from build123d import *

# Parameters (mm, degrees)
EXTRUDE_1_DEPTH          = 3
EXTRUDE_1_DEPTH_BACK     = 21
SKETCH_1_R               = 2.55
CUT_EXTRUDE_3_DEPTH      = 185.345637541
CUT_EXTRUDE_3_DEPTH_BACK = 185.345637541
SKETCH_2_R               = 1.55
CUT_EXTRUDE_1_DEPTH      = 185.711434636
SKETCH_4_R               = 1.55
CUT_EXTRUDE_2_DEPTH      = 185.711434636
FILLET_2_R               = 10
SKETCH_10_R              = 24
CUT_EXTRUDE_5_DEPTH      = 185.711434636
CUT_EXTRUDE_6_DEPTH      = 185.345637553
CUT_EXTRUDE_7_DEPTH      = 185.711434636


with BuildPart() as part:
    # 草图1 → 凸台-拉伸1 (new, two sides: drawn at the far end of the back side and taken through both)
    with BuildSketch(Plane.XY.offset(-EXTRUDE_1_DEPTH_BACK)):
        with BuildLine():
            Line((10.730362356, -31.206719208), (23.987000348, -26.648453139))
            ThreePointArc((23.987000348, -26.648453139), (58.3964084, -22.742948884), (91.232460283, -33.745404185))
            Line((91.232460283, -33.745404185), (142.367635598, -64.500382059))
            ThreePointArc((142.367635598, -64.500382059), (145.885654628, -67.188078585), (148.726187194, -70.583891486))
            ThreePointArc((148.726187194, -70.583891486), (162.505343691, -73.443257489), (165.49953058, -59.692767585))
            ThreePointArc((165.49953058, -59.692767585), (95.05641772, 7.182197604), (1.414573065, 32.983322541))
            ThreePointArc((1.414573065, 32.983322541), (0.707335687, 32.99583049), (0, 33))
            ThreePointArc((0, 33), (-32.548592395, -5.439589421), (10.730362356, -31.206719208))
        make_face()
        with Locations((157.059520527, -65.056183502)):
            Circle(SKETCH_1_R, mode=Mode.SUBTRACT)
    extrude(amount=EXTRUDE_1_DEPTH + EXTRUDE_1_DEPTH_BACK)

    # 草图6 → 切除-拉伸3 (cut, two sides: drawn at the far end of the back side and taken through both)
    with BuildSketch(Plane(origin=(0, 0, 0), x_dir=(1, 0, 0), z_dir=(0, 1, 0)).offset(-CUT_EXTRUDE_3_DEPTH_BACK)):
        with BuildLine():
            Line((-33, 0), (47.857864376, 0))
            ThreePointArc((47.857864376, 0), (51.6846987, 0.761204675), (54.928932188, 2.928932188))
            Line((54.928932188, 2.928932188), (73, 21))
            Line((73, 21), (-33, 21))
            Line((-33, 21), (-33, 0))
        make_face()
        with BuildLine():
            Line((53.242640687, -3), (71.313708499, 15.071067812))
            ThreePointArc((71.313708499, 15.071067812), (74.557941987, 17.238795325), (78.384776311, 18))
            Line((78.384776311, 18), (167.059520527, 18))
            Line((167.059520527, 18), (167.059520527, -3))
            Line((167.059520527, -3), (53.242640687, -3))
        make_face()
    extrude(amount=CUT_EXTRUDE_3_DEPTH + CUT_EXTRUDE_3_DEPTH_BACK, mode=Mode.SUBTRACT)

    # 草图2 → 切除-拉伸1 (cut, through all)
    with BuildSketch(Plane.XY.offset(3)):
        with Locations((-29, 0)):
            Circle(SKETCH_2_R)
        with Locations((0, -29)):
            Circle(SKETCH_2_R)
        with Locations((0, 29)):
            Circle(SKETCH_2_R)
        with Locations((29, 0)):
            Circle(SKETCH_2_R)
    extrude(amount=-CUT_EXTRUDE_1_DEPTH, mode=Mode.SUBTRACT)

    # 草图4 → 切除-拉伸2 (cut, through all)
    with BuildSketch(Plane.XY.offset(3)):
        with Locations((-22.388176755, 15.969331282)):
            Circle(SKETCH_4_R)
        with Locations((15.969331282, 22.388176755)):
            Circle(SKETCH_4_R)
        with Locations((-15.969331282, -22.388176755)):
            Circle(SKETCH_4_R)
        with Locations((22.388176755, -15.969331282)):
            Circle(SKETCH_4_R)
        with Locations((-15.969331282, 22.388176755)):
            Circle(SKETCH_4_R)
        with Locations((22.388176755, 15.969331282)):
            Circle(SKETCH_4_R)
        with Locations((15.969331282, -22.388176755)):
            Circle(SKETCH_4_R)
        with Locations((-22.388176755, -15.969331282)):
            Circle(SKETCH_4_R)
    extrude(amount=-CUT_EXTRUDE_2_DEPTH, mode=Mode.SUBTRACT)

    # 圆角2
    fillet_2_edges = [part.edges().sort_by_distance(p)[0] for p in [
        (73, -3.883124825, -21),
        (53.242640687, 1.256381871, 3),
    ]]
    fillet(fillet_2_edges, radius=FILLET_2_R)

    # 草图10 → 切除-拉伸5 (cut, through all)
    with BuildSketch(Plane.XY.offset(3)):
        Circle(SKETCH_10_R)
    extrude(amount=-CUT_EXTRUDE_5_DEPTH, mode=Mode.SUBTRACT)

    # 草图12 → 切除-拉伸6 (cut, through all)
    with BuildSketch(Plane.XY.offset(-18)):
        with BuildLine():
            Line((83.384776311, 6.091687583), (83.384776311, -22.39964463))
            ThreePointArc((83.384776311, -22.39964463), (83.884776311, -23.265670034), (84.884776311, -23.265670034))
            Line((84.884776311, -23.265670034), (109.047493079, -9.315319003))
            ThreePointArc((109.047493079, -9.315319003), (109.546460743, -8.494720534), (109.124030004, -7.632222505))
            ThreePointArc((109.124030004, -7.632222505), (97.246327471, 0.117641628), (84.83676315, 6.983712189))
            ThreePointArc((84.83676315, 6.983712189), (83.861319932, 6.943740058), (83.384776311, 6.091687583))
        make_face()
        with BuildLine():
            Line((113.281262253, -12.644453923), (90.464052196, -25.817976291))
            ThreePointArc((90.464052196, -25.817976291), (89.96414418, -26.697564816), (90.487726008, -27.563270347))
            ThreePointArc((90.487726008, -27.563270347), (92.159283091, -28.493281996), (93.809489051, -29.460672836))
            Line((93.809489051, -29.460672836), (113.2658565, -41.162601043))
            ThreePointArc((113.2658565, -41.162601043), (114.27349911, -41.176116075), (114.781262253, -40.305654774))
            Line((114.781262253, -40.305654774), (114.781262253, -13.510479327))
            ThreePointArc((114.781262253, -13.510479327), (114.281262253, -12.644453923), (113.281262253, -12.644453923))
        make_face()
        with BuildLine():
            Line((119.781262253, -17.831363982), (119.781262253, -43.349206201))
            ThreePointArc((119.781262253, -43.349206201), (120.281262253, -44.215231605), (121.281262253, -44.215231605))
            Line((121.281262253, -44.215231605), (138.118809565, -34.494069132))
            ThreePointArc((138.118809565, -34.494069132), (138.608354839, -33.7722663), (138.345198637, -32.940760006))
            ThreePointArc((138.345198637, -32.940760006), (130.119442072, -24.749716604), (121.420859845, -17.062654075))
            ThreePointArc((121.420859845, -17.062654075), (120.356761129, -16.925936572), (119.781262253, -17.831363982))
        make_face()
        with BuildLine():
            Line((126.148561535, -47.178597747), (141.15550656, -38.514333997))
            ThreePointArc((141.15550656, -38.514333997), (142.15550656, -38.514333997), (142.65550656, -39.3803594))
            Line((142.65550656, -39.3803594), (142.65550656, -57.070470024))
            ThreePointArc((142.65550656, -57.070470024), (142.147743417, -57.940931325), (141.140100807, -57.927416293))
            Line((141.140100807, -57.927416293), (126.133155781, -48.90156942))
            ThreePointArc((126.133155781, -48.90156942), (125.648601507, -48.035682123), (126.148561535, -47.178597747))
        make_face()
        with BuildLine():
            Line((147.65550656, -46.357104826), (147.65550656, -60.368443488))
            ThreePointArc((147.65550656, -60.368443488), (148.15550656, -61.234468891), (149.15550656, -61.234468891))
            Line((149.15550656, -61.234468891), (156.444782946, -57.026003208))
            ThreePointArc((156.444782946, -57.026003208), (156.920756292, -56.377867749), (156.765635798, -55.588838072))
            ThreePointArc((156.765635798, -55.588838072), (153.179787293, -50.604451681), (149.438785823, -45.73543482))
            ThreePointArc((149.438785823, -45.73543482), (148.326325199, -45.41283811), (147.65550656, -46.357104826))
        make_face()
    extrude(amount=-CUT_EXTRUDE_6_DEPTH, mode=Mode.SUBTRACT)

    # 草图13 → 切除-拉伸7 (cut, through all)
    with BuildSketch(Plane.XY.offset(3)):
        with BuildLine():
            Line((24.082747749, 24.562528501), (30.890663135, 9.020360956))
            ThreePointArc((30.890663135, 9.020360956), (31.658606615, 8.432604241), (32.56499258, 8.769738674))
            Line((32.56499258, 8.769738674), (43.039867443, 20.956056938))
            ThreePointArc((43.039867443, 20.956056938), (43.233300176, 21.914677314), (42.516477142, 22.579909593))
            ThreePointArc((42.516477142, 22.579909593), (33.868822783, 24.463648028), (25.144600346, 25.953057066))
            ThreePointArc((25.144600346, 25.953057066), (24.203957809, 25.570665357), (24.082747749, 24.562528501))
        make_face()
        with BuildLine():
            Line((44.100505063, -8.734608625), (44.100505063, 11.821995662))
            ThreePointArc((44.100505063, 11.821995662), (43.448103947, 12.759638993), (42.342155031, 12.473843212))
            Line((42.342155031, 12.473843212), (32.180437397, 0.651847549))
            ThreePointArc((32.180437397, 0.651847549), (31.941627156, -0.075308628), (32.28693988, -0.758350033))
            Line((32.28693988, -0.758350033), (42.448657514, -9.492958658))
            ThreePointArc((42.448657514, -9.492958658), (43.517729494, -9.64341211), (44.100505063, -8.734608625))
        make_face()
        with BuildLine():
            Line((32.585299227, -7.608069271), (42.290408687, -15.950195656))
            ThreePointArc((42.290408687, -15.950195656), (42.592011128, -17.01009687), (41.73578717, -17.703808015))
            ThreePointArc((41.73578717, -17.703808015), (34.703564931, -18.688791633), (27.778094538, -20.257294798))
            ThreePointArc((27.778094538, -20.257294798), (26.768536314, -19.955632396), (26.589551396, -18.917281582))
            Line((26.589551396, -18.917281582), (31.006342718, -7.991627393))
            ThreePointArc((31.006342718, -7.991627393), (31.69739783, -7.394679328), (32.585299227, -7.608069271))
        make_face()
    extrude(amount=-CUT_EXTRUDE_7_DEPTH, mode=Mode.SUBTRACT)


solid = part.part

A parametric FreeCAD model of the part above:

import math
import FreeCAD as App
import Part
import Sketcher
Q = App.Units.Quantity


def edges_at(feature, points):
    """Names of the edges that pass closest to the given points."""
    edges = feature.Shape.Edges
    near = lambda p: min(range(len(edges)), key=lambda i: edges[i].distToShape(Part.Vertex(*p))[0])
    return sorted({f"Edge{near(p) + 1}" for p in points})

doc = App.newDocument("Part")
body = doc.addObject("PartDesign::Body", "Body")

sketch1 = body.newObject("Sketcher::SketchObject", "Sketch")
sketch1.AttachmentSupport = (doc.getObject("XY_Plane"), [""])
sketch1.MapMode = "FlatFace"
sketch1.addGeometry(Part.LineSegment(App.Vector(10.7, -31.2, 0), App.Vector(24, -26.6, 0)), False)
sketch1.addGeometry(Part.ArcOfCircle(Part.Circle(App.Vector(50, -102.3, 0), App.Vector(0, 0, 1), 80), math.radians(59), math.radians(109)), False)
sketch1.addGeometry(Part.LineSegment(App.Vector(91.2, -33.7, 0), App.Vector(142.4, -64.5, 0)), False)
sketch1.addGeometry(Part.ArcOfCircle(Part.Circle(App.Vector(132.1, -81.6, 0), App.Vector(0, 0, 1), 20), math.radians(34), math.radians(59)), False)
sketch1.addGeometry(Part.ArcOfCircle(Part.Circle(App.Vector(157.1, -65.1, 0), App.Vector(0, 0, 1), 10), math.radians(-146), math.radians(32)), False)
sketch1.addGeometry(Part.ArcOfCircle(Part.Circle(App.Vector(-3.3, -167, 0), App.Vector(0, 0, 1), 200), math.radians(32), math.radians(89)), False)
sketch1.addGeometry(Part.ArcOfCircle(Part.Circle(App.Vector(0, -27, 0), App.Vector(0, 0, 1), 60), math.radians(88.65), math.radians(90)), False)
sketch1.addGeometry(Part.ArcOfCircle(Part.Circle(App.Vector(0, 0, 0), App.Vector(0, 0, 1), 33), math.radians(90), math.radians(289)), False)
sketch1.addGeometry(Part.Circle(App.Vector(157.1, -65.1, 0), App.Vector(0, 0, 1), 2.5), False)
sketch1.addConstraint(Sketcher.Constraint("Tangent", 0, 2, 1, 2))
sketch1.addConstraint(Sketcher.Constraint("Tangent", 1, 1, 2, 1))
sketch1.addConstraint(Sketcher.Constraint("Tangent", 2, 2, 3, 2))
sketch1.addConstraint(Sketcher.Constraint("Tangent", 3, 1, 4, 1))
sketch1.addConstraint(Sketcher.Constraint("Tangent", 4, 2, 5, 1))
sketch1.addConstraint(Sketcher.Constraint("Tangent", 5, 2, 6, 1))
sketch1.addConstraint(Sketcher.Constraint("Tangent", 6, 2, 7, 1))
sketch1.addConstraint(Sketcher.Constraint("Tangent", 7, 2, 0, 1))
sketch1.addConstraint(Sketcher.Constraint("Coincident", 7, 3, -1, 1))
sketch1.addConstraint(Sketcher.Constraint("Coincident", 8, 3, 4, 3))
sketch1.addConstraint(Sketcher.Constraint("PointOnObject", 6, 3, -2))
sketch1.addConstraint(Sketcher.Constraint("Radius", 1, Q("80 mm")))
sketch1.addConstraint(Sketcher.Constraint("Radius", 3, Q("20 mm")))
sketch1.addConstraint(Sketcher.Constraint("Radius", 4, Q("10 mm")))
sketch1.addConstraint(Sketcher.Constraint("Radius", 5, Q("200 mm")))
sketch1.addConstraint(Sketcher.Constraint("Radius", 7, Q("33 mm")))
sketch1.addConstraint(Sketcher.Constraint("Diameter", 8, Q("5.1 mm")))
sketch1.addConstraint(Sketcher.Constraint("DistanceX", -1, 1, 1, 3, Q("50 mm")))
sketch1.addConstraint(Sketcher.Constraint("DistanceX", 3, 3, 4, 3, Q("25 mm")))
sketch1.addConstraint(Sketcher.Constraint("DistanceX", -1, 1, 0, 2, Q("23.987 mm")))
sketch1.addConstraint(Sketcher.Constraint("Radius", 6, Q("60.000006 mm")))
sketch1.addConstraint(Sketcher.Constraint("DistanceY", 1, 3, 3, 3, Q("20.661798 mm")))
sketch1.addConstraint(Sketcher.Constraint("DistanceY", 1, 3, 1, 1, Q("68.555702 mm")))
pad1 = body.newObject("PartDesign::Pad", "Pad")
pad1.Profile = sketch1
pad1.Type = "TwoLengths"
pad1.Length = 3
pad1.Length2 = 21

sketch2 = body.newObject("Sketcher::SketchObject", "Sketch001")
sketch2.AttachmentSupport = (doc.getObject("XZ_Plane"), [""])
sketch2.MapMode = "FlatFace"
sketch2.addGeometry(Part.LineSegment(App.Vector(-33, 0, 0), App.Vector(48, 0, 0)), False)
sketch2.addGeometry(Part.ArcOfCircle(Part.Circle(App.Vector(48, -10, 0), App.Vector(0, 0, 1), 10), math.radians(45), math.radians(90)), False)
sketch2.addGeometry(Part.LineSegment(App.Vector(55, -3, 0), App.Vector(73, -21, 0)), False)
sketch2.addGeometry(Part.LineSegment(App.Vector(73, -21, 0), App.Vector(-33, -21, 0)), False)
sketch2.addGeometry(Part.LineSegment(App.Vector(-33, -21, 0), App.Vector(-33, 0, 0)), False)
sketch2.addGeometry(Part.LineSegment(App.Vector(71, -15, 0), App.Vector(53, 3, 0)), False)
sketch2.addGeometry(Part.LineSegment(App.Vector(53, 3, 0), App.Vector(167, 3, 0)), False)
sketch2.addGeometry(Part.LineSegment(App.Vector(167, 3, 0), App.Vector(167, -18, 0)), False)
sketch2.addGeometry(Part.LineSegment(App.Vector(167, -18, 0), App.Vector(78, -18, 0)), False)
sketch2.addGeometry(Part.ArcOfCircle(Part.Circle(App.Vector(78, -8, 0), App.Vector(0, 0, 1), 10), math.radians(-135), math.radians(-90)), False)
sketch2.addConstraint(Sketcher.Constraint("Tangent", 0, 2, 1, 2))
sketch2.addConstraint(Sketcher.Constraint("Tangent", 1, 1, 2, 1))
sketch2.addConstraint(Sketcher.Constraint("Coincident", 2, 2, 3, 1))
sketch2.addConstraint(Sketcher.Constraint("Coincident", 3, 2, 4, 1))
sketch2.addConstraint(Sketcher.Constraint("Coincident", 4, 2, 0, 1))
sketch2.addConstraint(Sketcher.Constraint("Coincident", 5, 2, 6, 1))
sketch2.addConstraint(Sketcher.Constraint("Coincident", 6, 2, 7, 1))
sketch2.addConstraint(Sketcher.Constraint("Coincident", 7, 2, 8, 1))
sketch2.addConstraint(Sketcher.Constraint("Tangent", 8, 2, 9, 2))
sketch2.addConstraint(Sketcher.Constraint("Tangent", 9, 1, 5, 1))
sketch2.addConstraint(Sketcher.Constraint("Horizontal", 0))
sketch2.addConstraint(Sketcher.Constraint("Horizontal", 3))
sketch2.addConstraint(Sketcher.Constraint("Vertical", 4))
sketch2.addConstraint(Sketcher.Constraint("Horizontal", 6))
sketch2.addConstraint(Sketcher.Constraint("Vertical", 7))
sketch2.addConstraint(Sketcher.Constraint("Horizontal", 8))
sketch2.addConstraint(Sketcher.Constraint("Equal", 1, 9))
sketch2.addConstraint(Sketcher.Constraint("PointOnObject", 0, 2, -1))
sketch2.addConstraint(Sketcher.Constraint("Parallel", 2, 5))
sketch2.addConstraint(Sketcher.Constraint("Equal", 4, 7))
sketch2.addConstraint(Sketcher.Constraint("Radius", 1, Q("10 mm")))
sketch2.addConstraint(Sketcher.Constraint("DistanceX", 3, 2, 3, 1, Q("106 mm")))
sketch2.addConstraint(Sketcher.Constraint("DistanceY", 4, 1, 4, 2, Q("21 mm")))
sketch2.addConstraint(Sketcher.Constraint("Angle", 2, Q("-45 deg")))
sketch2.addConstraint(Sketcher.Constraint("DistanceY", 9, 3, -1, 1, Q("8 mm")))
sketch2.addConstraint(Sketcher.Constraint("DistanceX", -1, 1, 2, 2, Q("73 mm")))
sketch2.addConstraint(Sketcher.Constraint("DistanceX", 6, 1, 6, 2, Q("113.81688 mm")))
sketch2.addConstraint(Sketcher.Constraint("DistanceX", -1, 1, 5, 2, Q("53.242641 mm")))
pocket1 = body.newObject("PartDesign::Pocket", "Pocket")
pocket1.Profile = sketch2
pocket1.Type = "ThroughAll"
pocket1.Midplane = True

sketch3 = body.newObject("Sketcher::SketchObject", "Sketch002")
sketch3.AttachmentSupport = (doc.getObject("XY_Plane"), [""])
sketch3.MapMode = "FlatFace"
sketch3.AttachmentOffset = App.Placement(App.Vector(0, 0, 3), App.Rotation())
sketch3.addGeometry(Part.Circle(App.Vector(-29, 0, 0), App.Vector(0, 0, 1), 1.6), False)
sketch3.addGeometry(Part.Circle(App.Vector(0, -29, 0), App.Vector(0, 0, 1), 1.6), False)
sketch3.addGeometry(Part.Circle(App.Vector(0, 29, 0), App.Vector(0, 0, 1), 1.6), False)
sketch3.addGeometry(Part.Circle(App.Vector(29, 0, 0), App.Vector(0, 0, 1), 1.6), False)
sketch3.addConstraint(Sketcher.Constraint("Equal", 0, 1))
sketch3.addConstraint(Sketcher.Constraint("Equal", 1, 2))
sketch3.addConstraint(Sketcher.Constraint("Equal", 2, 3))
sketch3.addConstraint(Sketcher.Constraint("Symmetric", 1, 3, 2, 3, -1, 1))
sketch3.addConstraint(Sketcher.Constraint("Symmetric", 0, 3, 3, 3, -1, 1))
sketch3.addConstraint(Sketcher.Constraint("PointOnObject", 0, 3, -1))
sketch3.addConstraint(Sketcher.Constraint("PointOnObject", 1, 3, -2))
sketch3.addConstraint(Sketcher.Constraint("Diameter", 0, Q("3.1 mm")))
sketch3.addConstraint(Sketcher.Constraint("DistanceX", 0, 3, -1, 1, Q("29 mm")))
sketch3.addConstraint(Sketcher.Constraint("DistanceY", 1, 3, -1, 1, Q("29 mm")))
pocket2 = body.newObject("PartDesign::Pocket", "Pocket001")
pocket2.Profile = sketch3
pocket2.Type = "ThroughAll"

sketch4 = body.newObject("Sketcher::SketchObject", "Sketch003")
sketch4.AttachmentSupport = (doc.getObject("XY_Plane"), [""])
sketch4.MapMode = "FlatFace"
sketch4.AttachmentOffset = App.Placement(App.Vector(0, 0, 3), App.Rotation())
sketch4.addGeometry(Part.Circle(App.Vector(-22.4, 16, 0), App.Vector(0, 0, 1), 1.6), False)
sketch4.addGeometry(Part.Circle(App.Vector(16, 22.4, 0), App.Vector(0, 0, 1), 1.6), False)
sketch4.addGeometry(Part.Circle(App.Vector(-16, -22.4, 0), App.Vector(0, 0, 1), 1.6), False)
sketch4.addGeometry(Part.Circle(App.Vector(22.4, -16, 0), App.Vector(0, 0, 1), 1.6), False)
sketch4.addGeometry(Part.Circle(App.Vector(-16, 22.4, 0), App.Vector(0, 0, 1), 1.6), False)
sketch4.addGeometry(Part.Circle(App.Vector(22.4, 16, 0), App.Vector(0, 0, 1), 1.6), False)
sketch4.addGeometry(Part.Circle(App.Vector(16, -22.4, 0), App.Vector(0, 0, 1), 1.6), False)
sketch4.addGeometry(Part.Circle(App.Vector(-22.4, -16, 0), App.Vector(0, 0, 1), 1.6), False)
sketch4.addConstraint(Sketcher.Constraint("Equal", 0, 1))
sketch4.addConstraint(Sketcher.Constraint("Equal", 1, 2))
sketch4.addConstraint(Sketcher.Constraint("Equal", 2, 3))
sketch4.addConstraint(Sketcher.Constraint("Equal", 3, 4))
sketch4.addConstraint(Sketcher.Constraint("Equal", 4, 5))
sketch4.addConstraint(Sketcher.Constraint("Equal", 5, 6))
sketch4.addConstraint(Sketcher.Constraint("Equal", 6, 7))
sketch4.addConstraint(Sketcher.Constraint("Symmetric", 1, 3, 2, 3, -1, 1))
sketch4.addConstraint(Sketcher.Constraint("Symmetric", 0, 3, 3, 3, -1, 1))
sketch4.addConstraint(Sketcher.Constraint("Symmetric", 4, 3, 6, 3, -1, 1))
sketch4.addConstraint(Sketcher.Constraint("Symmetric", 5, 3, 7, 3, -1, 1))
sketch4.addConstraint(Sketcher.Constraint("Symmetric", 1, 3, 4, 3, -2))
sketch4.addConstraint(Sketcher.Constraint("Symmetric", 0, 3, 5, 3, -2))
sketch4.addConstraint(Sketcher.Constraint("Diameter", 0, Q("3.1 mm")))
sketch4.addConstraint(Sketcher.Constraint("DistanceY", -1, 1, 0, 3, Q("15.969331 mm")))
sketch4.addConstraint(Sketcher.Constraint("DistanceX", -1, 1, 1, 3, Q("15.969331 mm")))
sketch4.addConstraint(Sketcher.Constraint("DistanceX", 0, 3, 1, 3, Q("38.357508 mm")))
sketch4.addConstraint(Sketcher.Constraint("DistanceY", 2, 3, 0, 3, Q("38.357508 mm")))
pocket3 = body.newObject("PartDesign::Pocket", "Pocket002")
pocket3.Profile = sketch4
pocket3.Type = "ThroughAll"
doc.recompute()

fillet = body.newObject("PartDesign::Fillet", "Fillet")
fillet.Base = (pocket3, edges_at(pocket3, [(73, -3.883, -21), (53.243, 1.256, 3)]))
fillet.Radius = 10

sketch5 = body.newObject("Sketcher::SketchObject", "Sketch004")
sketch5.AttachmentSupport = (doc.getObject("XY_Plane"), [""])
sketch5.MapMode = "FlatFace"
sketch5.AttachmentOffset = App.Placement(App.Vector(0, 0, 3), App.Rotation())
sketch5.addGeometry(Part.Circle(App.Vector(0, 0, 0), App.Vector(0, 0, 1), 24), False)
sketch5.addConstraint(Sketcher.Constraint("Coincident", 0, 3, -1, 1))
sketch5.addConstraint(Sketcher.Constraint("Diameter", 0, Q("48 mm")))
pocket4 = body.newObject("PartDesign::Pocket", "Pocket003")
pocket4.Profile = sketch5
pocket4.Type = "ThroughAll"

sketch6 = body.newObject("Sketcher::SketchObject", "Sketch005")
sketch6.AttachmentSupport = (doc.getObject("XY_Plane"), [""])
sketch6.MapMode = "FlatFace"
sketch6.AttachmentOffset = App.Placement(App.Vector(0, 0, -18), App.Rotation())
sketch6.addGeometry(Part.LineSegment(App.Vector(83.4, 6.1, 0), App.Vector(83.4, -22.4, 0)), False)
sketch6.addGeometry(Part.ArcOfCircle(Part.Circle(App.Vector(84.4, -22.4, 0), App.Vector(0, 0, 1), 1), math.radians(180), math.radians(300)), False)
sketch6.addGeometry(Part.LineSegment(App.Vector(84.9, -23.3, 0), App.Vector(109, -9.3, 0)), False)
sketch6.addGeometry(Part.ArcOfCircle(Part.Circle(App.Vector(108.5, -8.4, 0), App.Vector(0, 0, 1), 1), math.radians(-60), math.radians(55)), False)
sketch6.addGeometry(Part.ArcOfCircle(Part.Circle(App.Vector(-3.3, -167, 0), App.Vector(0, 0, 1), 195), math.radians(54.79), math.radians(63.13)), False)
sketch6.addGeometry(Part.ArcOfCircle(Part.Circle(App.Vector(84.4, 6.1, 0), App.Vector(0, 0, 1), 1), math.radians(63), math.radians(180)), False)
sketch6.addGeometry(Part.LineSegment(App.Vector(113.3, -12.6, 0), App.Vector(90.5, -25.8, 0)), False)
sketch6.addGeometry(Part.ArcOfCircle(Part.Circle(App.Vector(91, -26.7, 0), App.Vector(0, 0, 1), 1), math.radians(120), math.radians(242)), False)
sketch6.addGeometry(Part.ArcOfCircle(Part.Circle(App.Vector(50, -102.3, 0), App.Vector(0, 0, 1), 85), math.radians(58.98), math.radians(61.55)), False)
sketch6.addGeometry(Part.LineSegment(App.Vector(93.8, -29.5, 0), App.Vector(113.3, -41.2, 0)), False)
sketch6.addGeometry(Part.ArcOfCircle(Part.Circle(App.Vector(113.8, -40.3, 0), App.Vector(0, 0, 1), 1), math.radians(-121), math.radians(0)), False)
sketch6.addGeometry(Part.LineSegment(App.Vector(114.8, -40.3, 0), App.Vector(114.8, -13.5, 0)), False)
sketch6.addGeometry(Part.ArcOfCircle(Part.Circle(App.Vector(113.8, -13.5, 0), App.Vector(0, 0, 1), 1), math.radians(0), math.radians(120)), False)
sketch6.addGeometry(Part.LineSegment(App.Vector(119.8, -17.8, 0), App.Vector(119.8, -43.3, 0)), False)
sketch6.addGeometry(Part.ArcOfCircle(Part.Circle(App.Vector(120.8, -43.3, 0), App.Vector(0, 0, 1), 1), math.radians(180), math.radians(300)), False)
sketch6.addGeometry(Part.LineSegment(App.Vector(121.3, -44.2, 0), App.Vector(138.1, -34.5, 0)), False)
sketch6.addGeometry(Part.ArcOfCircle(Part.Circle(App.Vector(137.6, -33.6, 0), App.Vector(0, 0, 1), 1), math.radians(-60), math.radians(43)), False)
sketch6.addGeometry(Part.ArcOfCircle(Part.Circle(App.Vector(-3.3, -167, 0), App.Vector(0, 0, 1), 195), math.radians(43.42), math.radians(50.24)), False)
sketch6.addGeometry(Part.ArcOfCircle(Part.Circle(App.Vector(120.8, -17.8, 0), App.Vector(0, 0, 1), 1), math.radians(50), math.radians(180)), False)
sketch6.addGeometry(Part.LineSegment(App.Vector(141.2, -38.5, 0), App.Vector(126.1, -47.2, 0)), False)
sketch6.addGeometry(Part.ArcOfCircle(Part.Circle(App.Vector(126.6, -48, 0), App.Vector(0, 0, 1), 1), math.radians(120), math.radians(239)), False)
sketch6.addGeometry(Part.LineSegment(App.Vector(126.1, -48.9, 0), App.Vector(141.1, -57.9, 0)), False)
sketch6.addGeometry(Part.ArcOfCircle(Part.Circle(App.Vector(141.7, -57.1, 0), App.Vector(0, 0, 1), 1), math.radians(-121), math.radians(0)), False)
sketch6.addGeometry(Part.LineSegment(App.Vector(142.7, -57.1, 0), App.Vector(142.7, -39.4, 0)), False)
sketch6.addGeometry(Part.ArcOfCircle(Part.Circle(App.Vector(141.7, -39.4, 0), App.Vector(0, 0, 1), 1), math.radians(0), math.radians(120)), False)
sketch6.addGeometry(Part.LineSegment(App.Vector(147.7, -46.4, 0), App.Vector(147.7, -60.4, 0)), False)
sketch6.addGeometry(Part.ArcOfCircle(Part.Circle(App.Vector(148.7, -60.4, 0), App.Vector(0, 0, 1), 1), math.radians(-180), math.radians(-60)), False)
sketch6.addGeometry(Part.LineSegment(App.Vector(149.2, -61.2, 0), App.Vector(156.4, -57, 0)), False)
sketch6.addGeometry(Part.ArcOfCircle(Part.Circle(App.Vector(155.9, -56.2, 0), App.Vector(0, 0, 1), 1), math.radians(-60), math.radians(35)), False)
sketch6.addGeometry(Part.ArcOfCircle(Part.Circle(App.Vector(-3.3, -167, 0), App.Vector(0, 0, 1), 195), math.radians(34.83), math.radians(38.44)), False)
sketch6.addGeometry(Part.ArcOfCircle(Part.Circle(App.Vector(148.7, -46.4, 0), App.Vector(0, 0, 1), 1), math.radians(38), math.radians(180)), False)
sketch6.addConstraint(Sketcher.Constraint("Tangent", 0, 2, 1, 1))
sketch6.addConstraint(Sketcher.Constraint("Tangent", 1, 2, 2, 1))
sketch6.addConstraint(Sketcher.Constraint("Tangent", 2, 2, 3, 1))
sketch6.addConstraint(Sketcher.Constraint("Tangent", 3, 2, 4, 1))
sketch6.addConstraint(Sketcher.Constraint("Tangent", 4, 2, 5, 1))
sketch6.addConstraint(Sketcher.Constraint("Tangent", 5, 2, 0, 1))
sketch6.addConstraint(Sketcher.Constraint("Tangent", 6, 2, 7, 1))
sketch6.addConstraint(Sketcher.Constraint("Tangent", 7, 2, 8, 2))
sketch6.addConstraint(Sketcher.Constraint("Tangent", 8, 1, 9, 1))
sketch6.addConstraint(Sketcher.Constraint("Tangent", 9, 2, 10, 1))
sketch6.addConstraint(Sketcher.Constraint("Tangent", 10, 2, 11, 1))
sketch6.addConstraint(Sketcher.Constraint("Tangent", 11, 2, 12, 1))
sketch6.addConstraint(Sketcher.Constraint("Tangent", 12, 2, 6, 1))
sketch6.addConstraint(Sketcher.Constraint("Tangent", 13, 2, 14, 1))
sketch6.addConstraint(Sketcher.Constraint("Tangent", 14, 2, 15, 1))
sketch6.addConstraint(Sketcher.Constraint("Tangent", 15, 2, 16, 1))
sketch6.addConstraint(Sketcher.Constraint("Tangent", 16, 2, 17, 1))
sketch6.addConstraint(Sketcher.Constraint("Tangent", 17, 2, 18, 1))
sketch6.addConstraint(Sketcher.Constraint("Tangent", 18, 2, 13, 1))
sketch6.addConstraint(Sketcher.Constraint("Tangent", 19, 2, 20, 1))
sketch6.addConstraint(Sketcher.Constraint("Tangent", 20, 2, 21, 1))
sketch6.addConstraint(Sketcher.Constraint("Tangent", 21, 2, 22, 1))
sketch6.addConstraint(Sketcher.Constraint("Tangent", 22, 2, 23, 1))
sketch6.addConstraint(Sketcher.Constraint("Tangent", 23, 2, 24, 1))
sketch6.addConstraint(Sketcher.Constraint("Tangent", 24, 2, 19, 1))
sketch6.addConstraint(Sketcher.Constraint("Tangent", 25, 2, 26, 1))
sketch6.addConstraint(Sketcher.Constraint("Tangent", 26, 2, 27, 1))
sketch6.addConstraint(Sketcher.Constraint("Tangent", 27, 2, 28, 1))
sketch6.addConstraint(Sketcher.Constraint("Tangent", 28, 2, 29, 1))
sketch6.addConstraint(Sketcher.Constraint("Tangent", 29, 2, 30, 1))
sketch6.addConstraint(Sketcher.Constraint("Tangent", 30, 2, 25, 1))
sketch6.addConstraint(Sketcher.Constraint("Vertical", 0))
sketch6.addConstraint(Sketcher.Constraint("Vertical", 11))
sketch6.addConstraint(Sketcher.Constraint("Vertical", 13))
sketch6.addConstraint(Sketcher.Constraint("Vertical", 23))
sketch6.addConstraint(Sketcher.Constraint("Vertical", 25))
sketch6.addConstraint(Sketcher.Constraint("Coincident", 17, 3, 4, 3))
sketch6.addConstraint(Sketcher.Constraint("Coincident", 29, 3, 4, 3))
sketch6.addConstraint(Sketcher.Constraint("Equal", 1, 3))
sketch6.addConstraint(Sketcher.Constraint("Equal", 3, 5))
sketch6.addConstraint(Sketcher.Constraint("Equal", 5, 7))
sketch6.addConstraint(Sketcher.Constraint("Equal", 7, 10))
sketch6.addConstraint(Sketcher.Constraint("Equal", 10, 12))
sketch6.addConstraint(Sketcher.Constraint("Equal", 12, 14))
sketch6.addConstraint(Sketcher.Constraint("Equal", 14, 16))
sketch6.addConstraint(Sketcher.Constraint("Equal", 4, 17))
sketch6.addConstraint(Sketcher.Constraint("Equal", 16, 18))
sketch6.addConstraint(Sketcher.Constraint("Equal", 18, 20))
sketch6.addConstraint(Sketcher.Constraint("Equal", 20, 22))
sketch6.addConstraint(Sketcher.Constraint("Equal", 22, 24))
sketch6.addConstraint(Sketcher.Constraint("Equal", 24, 26))
sketch6.addConstraint(Sketcher.Constraint("Equal", 26, 28))
sketch6.addConstraint(Sketcher.Constraint("Equal", 17, 29))
sketch6.addConstraint(Sketcher.Constraint("Equal", 28, 30))
sketch6.addConstraint(Sketcher.Constraint("Parallel", 2, 6))
sketch6.addConstraint(Sketcher.Constraint("Parallel", 6, 15))
sketch6.addConstraint(Sketcher.Constraint("Parallel", 15, 19))
sketch6.addConstraint(Sketcher.Constraint("Parallel", 9, 21))
sketch6.addConstraint(Sketcher.Constraint("Parallel", 19, 27))
sketch6.addConstraint(Sketcher.Constraint("Radius", 1, Q("1 mm")))
sketch6.addConstraint(Sketcher.Constraint("Radius", 4, Q("195 mm")))
sketch6.addConstraint(Sketcher.Constraint("Radius", 8, Q("84.999999 mm")))
sketch6.addConstraint(Sketcher.Constraint("Angle", 2, Q("30 deg")))
sketch6.addConstraint(Sketcher.Constraint("DistanceX", -1, 1, 8, 3, Q("50 mm")))
sketch6.addConstraint(Sketcher.Constraint("DistanceX", 10, 3, 14, 3, Q("7 mm")))
sketch6.addConstraint(Sketcher.Constraint("DistanceX", 22, 3, 26, 3, Q("7 mm")))
sketch6.addConstraint(Sketcher.Constraint("DistanceY", 7, 3, -1, 1, Q("26.684002 mm")))
sketch6.addConstraint(Sketcher.Constraint("DistanceY", 26, 2, 22, 2, Q("4.163999 mm")))
sketch6.addConstraint(Sketcher.Constraint("DistanceY", 23, 1, 23, 2, Q("17.690111 mm")))
sketch6.addConstraint(Sketcher.Constraint("DistanceY", 25, 2, 25, 1, Q("14.011339 mm")))
sketch6.addConstraint(Sketcher.Constraint("DistanceY", 9, 2, -1, 1, Q("41.162601 mm")))
sketch6.addConstraint(Sketcher.Constraint("DistanceX", -1, 1, 16, 2, Q("138.345199 mm")))
sketch6.addConstraint(Sketcher.Constraint("DistanceX", -1, 1, 21, 2, Q("141.140101 mm")))
sketch6.addConstraint(Sketcher.Constraint("DistanceX", 14, 3, 20, 3, Q("5.867299 mm")))
sketch6.addConstraint(Sketcher.Constraint("DistanceY", 26, 3, 16, 3, Q("26.7404 mm")))
sketch6.addConstraint(Sketcher.Constraint("DistanceY", 7, 2, 1, 2, Q("4.2976 mm")))
sketch6.addConstraint(Sketcher.Constraint("Distance", 21, Q("17.512119 mm")))
sketch6.addConstraint(Sketcher.Constraint("DistanceY", 0, 2, 0, 1, Q("28.491332 mm")))
sketch6.addConstraint(Sketcher.Constraint("DistanceY", 22, 3, -1, 1, Q("57.07047 mm")))
pocket5 = body.newObject("PartDesign::Pocket", "Pocket004")
pocket5.Profile = sketch6
pocket5.Type = "ThroughAll"

sketch7 = body.newObject("Sketcher::SketchObject", "Sketch006")
sketch7.AttachmentSupport = (doc.getObject("XY_Plane"), [""])
sketch7.MapMode = "FlatFace"
sketch7.AttachmentOffset = App.Placement(App.Vector(0, 0, 3), App.Rotation())
sketch7.addGeometry(Part.LineSegment(App.Vector(24.1, 24.6, 0), App.Vector(30.9, 9, 0)), False)
sketch7.addGeometry(Part.ArcOfCircle(Part.Circle(App.Vector(31.8, 9.4, 0), App.Vector(0, 0, 1), 1), math.radians(-156), math.radians(-41)), False)
sketch7.addGeometry(Part.LineSegment(App.Vector(32.6, 8.8, 0), App.Vector(43, 21, 0)), False)
sketch7.addGeometry(Part.ArcOfCircle(Part.Circle(App.Vector(42.3, 21.6, 0), App.Vector(0, 0, 1), 1), math.radians(-41), math.radians(76)), False)
sketch7.addGeometry(Part.ArcOfCircle(Part.Circle(App.Vector(-3.3, -167, 0), App.Vector(0, 0, 1), 195), math.radians(76.41), math.radians(81.61)), False)
sketch7.addGeometry(Part.ArcOfCircle(Part.Circle(App.Vector(25, 25, 0), App.Vector(0, 0, 1), 1), math.radians(82), math.radians(204)), False)
sketch7.addGeometry(Part.LineSegment(App.Vector(44.1, -8.7, 0), App.Vector(44.1, 11.8, 0)), False)
sketch7.addGeometry(Part.ArcOfCircle(Part.Circle(App.Vector(43.1, 11.8, 0), App.Vector(0, 0, 1), 1), math.radians(0), math.radians(139)), False)
sketch7.addGeometry(Part.LineSegment(App.Vector(42.3, 12.5, 0), App.Vector(32.2, 0.7, 0)), False)
sketch7.addGeometry(Part.ArcOfCircle(Part.Circle(App.Vector(32.9, 0, 0), App.Vector(0, 0, 1), 1), math.radians(139), math.radians(229)), False)
sketch7.addGeometry(Part.LineSegment(App.Vector(32.3, -0.8, 0), App.Vector(42.4, -9.5, 0)), False)
sketch7.addGeometry(Part.ArcOfCircle(Part.Circle(App.Vector(43.1, -8.7, 0), App.Vector(0, 0, 1), 1), math.radians(-131), math.radians(0)), False)
sketch7.addGeometry(Part.LineSegment(App.Vector(42.3, -16, 0), App.Vector(32.6, -7.6, 0)), False)
sketch7.addGeometry(Part.ArcOfCircle(Part.Circle(App.Vector(31.9, -8.4, 0), App.Vector(0, 0, 1), 1), math.radians(49), math.radians(158)), False)
sketch7.addGeometry(Part.LineSegment(App.Vector(31, -8, 0), App.Vector(26.6, -18.9, 0)), False)
sketch7.addGeometry(Part.ArcOfCircle(Part.Circle(App.Vector(27.5, -19.3, 0), App.Vector(0, 0, 1), 1), math.radians(158), math.radians(285)), False)
sketch7.addGeometry(Part.ArcOfCircle(Part.Circle(App.Vector(50, -102.3, 0), App.Vector(0, 0, 1), 85), math.radians(95.58), math.radians(105.16)), False)
sketch7.addGeometry(Part.ArcOfCircle(Part.Circle(App.Vector(41.6, -16.7, 0), App.Vector(0, 0, 1), 1), math.radians(-84), math.radians(49)), False)
sketch7.addConstraint(Sketcher.Constraint("Tangent", 0, 2, 1, 1))
sketch7.addConstraint(Sketcher.Constraint("Tangent", 1, 2, 2, 1))
sketch7.addConstraint(Sketcher.Constraint("Tangent", 2, 2, 3, 1))
sketch7.addConstraint(Sketcher.Constraint("Tangent", 3, 2, 4, 1))
sketch7.addConstraint(Sketcher.Constraint("Tangent", 4, 2, 5, 1))
sketch7.addConstraint(Sketcher.Constraint("Tangent", 5, 2, 0, 1))
sketch7.addConstraint(Sketcher.Constraint("Tangent", 6, 2, 7, 1))
sketch7.addConstraint(Sketcher.Constraint("Tangent", 7, 2, 8, 1))
sketch7.addConstraint(Sketcher.Constraint("Tangent", 8, 2, 9, 1))
sketch7.addConstraint(Sketcher.Constraint("Tangent", 9, 2, 10, 1))
sketch7.addConstraint(Sketcher.Constraint("Tangent", 10, 2, 11, 1))
sketch7.addConstraint(Sketcher.Constraint("Tangent", 11, 2, 6, 1))
sketch7.addConstraint(Sketcher.Constraint("Tangent", 12, 2, 13, 1))
sketch7.addConstraint(Sketcher.Constraint("Tangent", 13, 2, 14, 1))
sketch7.addConstraint(Sketcher.Constraint("Tangent", 14, 2, 15, 1))
sketch7.addConstraint(Sketcher.Constraint("Tangent", 15, 2, 16, 2))
sketch7.addConstraint(Sketcher.Constraint("Tangent", 16, 1, 17, 1))
sketch7.addConstraint(Sketcher.Constraint("Tangent", 17, 2, 12, 1))
sketch7.addConstraint(Sketcher.Constraint("Vertical", 6))
sketch7.addConstraint(Sketcher.Constraint("Equal", 1, 3))
sketch7.addConstraint(Sketcher.Constraint("Equal", 3, 5))
sketch7.addConstraint(Sketcher.Constraint("Equal", 5, 7))
sketch7.addConstraint(Sketcher.Constraint("Equal", 7, 9))
sketch7.addConstraint(Sketcher.Constraint("Equal", 9, 11))
sketch7.addConstraint(Sketcher.Constraint("Equal", 11, 13))
sketch7.addConstraint(Sketcher.Constraint("Equal", 13, 15))
sketch7.addConstraint(Sketcher.Constraint("Equal", 15, 17))
sketch7.addConstraint(Sketcher.Constraint("PointOnObject", 9, 3, -1))
sketch7.addConstraint(Sketcher.Constraint("Parallel", 2, 8))
sketch7.addConstraint(Sketcher.Constraint("Perpendicular", 8, 10))
sketch7.addConstraint(Sketcher.Constraint("Parallel", 10, 12))
sketch7.addConstraint(Sketcher.Constraint("Radius", 1, Q("1 mm")))
sketch7.addConstraint(Sketcher.Constraint("Radius", 4, Q("195 mm")))
sketch7.addConstraint(Sketcher.Constraint("Radius", 16, Q("85 mm")))
sketch7.addConstraint(Sketcher.Constraint("DistanceX", -1, 1, 16, 3, Q("50 mm")))
sketch7.addConstraint(Sketcher.Constraint("Distance", 8, Q("15.589102 mm")))
sketch7.addConstraint(Sketcher.Constraint("DistanceX", -1, 1, 4, 2, Q("25.1446 mm")))
sketch7.addConstraint(Sketcher.Constraint("DistanceX", -1, 1, 12, 2, Q("32.585299 mm")))
sketch7.addConstraint(Sketcher.Constraint("DistanceX", 15, 3, 17, 3, Q("14.121901 mm")))
sketch7.addConstraint(Sketcher.Constraint("DistanceX", 14, 2, 13, 3, Q("5.3439 mm")))
sketch7.addConstraint(Sketcher.Constraint("DistanceY", 16, 1, 11, 3, Q("8.969199 mm")))
sketch7.addConstraint(Sketcher.Constraint("Distance", 14, Q("11.78465 mm")))
sketch7.addConstraint(Sketcher.Constraint("DistanceX", 4, 3, -1, 1, Q("3.30067 mm")))
sketch7.addConstraint(Sketcher.Constraint("DistanceY", -1, 1, 0, 2, Q("9.020361 mm")))
sketch7.addConstraint(Sketcher.Constraint("DistanceY", -1, 1, 1, 2, Q("8.769739 mm")))
sketch7.addConstraint(Sketcher.Constraint("DistanceY", -1, 1, 3, 2, Q("22.57991 mm")))
sketch7.addConstraint(Sketcher.Constraint("DistanceX", -1, 1, 9, 2, Q("32.28694 mm")))
pocket6 = body.newObject("PartDesign::Pocket", "Pocket005")
pocket6.Profile = sketch7
pocket6.Type = "ThroughAll"

doc.recompute()
